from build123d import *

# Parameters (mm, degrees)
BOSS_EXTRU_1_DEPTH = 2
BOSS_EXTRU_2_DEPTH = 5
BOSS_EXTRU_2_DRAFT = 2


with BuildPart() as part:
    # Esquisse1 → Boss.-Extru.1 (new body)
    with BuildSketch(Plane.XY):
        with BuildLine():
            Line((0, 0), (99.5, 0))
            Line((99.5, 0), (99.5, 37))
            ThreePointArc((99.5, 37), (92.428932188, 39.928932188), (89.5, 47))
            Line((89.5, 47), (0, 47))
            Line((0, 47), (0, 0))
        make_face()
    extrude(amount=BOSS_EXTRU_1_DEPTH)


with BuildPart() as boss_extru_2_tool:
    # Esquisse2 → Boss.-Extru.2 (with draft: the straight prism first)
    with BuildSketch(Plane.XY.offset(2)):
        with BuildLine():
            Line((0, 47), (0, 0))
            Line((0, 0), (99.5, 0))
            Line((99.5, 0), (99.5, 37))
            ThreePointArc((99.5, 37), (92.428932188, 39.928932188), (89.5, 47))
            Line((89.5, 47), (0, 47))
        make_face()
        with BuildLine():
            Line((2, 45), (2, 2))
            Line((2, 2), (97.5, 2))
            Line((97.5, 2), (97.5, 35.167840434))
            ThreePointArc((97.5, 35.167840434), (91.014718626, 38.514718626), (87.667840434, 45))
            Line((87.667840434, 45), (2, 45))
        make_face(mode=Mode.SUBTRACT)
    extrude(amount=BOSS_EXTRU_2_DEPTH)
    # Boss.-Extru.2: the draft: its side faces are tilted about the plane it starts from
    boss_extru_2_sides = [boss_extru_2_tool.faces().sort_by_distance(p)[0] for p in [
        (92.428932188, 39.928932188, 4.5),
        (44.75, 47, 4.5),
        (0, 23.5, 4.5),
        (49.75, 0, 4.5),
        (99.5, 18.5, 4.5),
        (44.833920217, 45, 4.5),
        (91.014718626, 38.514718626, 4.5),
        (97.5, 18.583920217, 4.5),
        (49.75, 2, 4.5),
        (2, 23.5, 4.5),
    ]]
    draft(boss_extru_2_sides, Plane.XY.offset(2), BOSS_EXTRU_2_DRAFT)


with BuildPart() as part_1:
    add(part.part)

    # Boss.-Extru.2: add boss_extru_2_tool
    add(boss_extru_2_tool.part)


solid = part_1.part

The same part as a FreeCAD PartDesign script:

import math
import FreeCAD as App
import Part
import Sketcher


def faces_at(feature, points):
    """Names of the faces that lie closest to the given points."""
    faces = feature.Shape.Faces
    near = lambda p: min(range(len(faces)), key=lambda i: faces[i].distToShape(Part.Vertex(*p))[0])
    return sorted({f"Face{near(p) + 1}" for p in points})

doc = App.newDocument("Part")
params = doc.addObject("Spreadsheet::Sheet", "Params")
for row, (alias, value) in enumerate([
    ("sketch1_radius", "10 mm"),
    ("sketch1_height", "37 mm"),
    ("sketch1_height2", "47 mm"),
    ("sketch1_width", "99.5 mm"),
    ("pad1_length", "2 mm"),
    ("sketch2_radius", "10 mm"),
    ("sketch2_radius2", "12 mm"),
    ("sketch2_height", "47 mm"),
    ("sketch2_height2", "43 mm"),
    ("sketch2_width", "99.5 mm"),
    ("pad2_length", "5 mm"),
    ("draft_angle", "2 deg"),
], start=1):
    params.set(f"A{row}", alias)
    params.set(f"B{row}", "=" + value)
    params.setAlias(f"B{row}", alias)

body = doc.addObject("PartDesign::Body", "Body")

# Sketch on XY plane
sketch1 = doc.addObject("Sketcher::SketchObject", "Sketch")
body.addObject(sketch1)
sketch1.AttachmentSupport = (doc.XY_Plane, [""])
sketch1.MapMode = "FlatFace"
sketch1.addGeometry([
    Part.LineSegment(App.Vector(0, 0, 0), App.Vector(100, 0, 0)),  # 0
    Part.LineSegment(App.Vector(100, 0, 0), App.Vector(100, 37, 0)),  # 1
    Part.ArcOfCircle(Part.Circle(App.Vector(100, 47, 0), App.Vector(0, 0, 1), 10), math.radians(180), math.radians(270)),  # 2
    Part.LineSegment(App.Vector(90, 47, 0), App.Vector(0, 47, 0)),  # 3
    Part.LineSegment(App.Vector(0, 47, 0), App.Vector(0, 0, 0)),  # 4
], False)
sketch1.addConstraint([
    Sketcher.Constraint("Coincident", 0, 2, 1, 1),
    Sketcher.Constraint("Coincident", 1, 2, 2, 2),
    Sketcher.Constraint("Coincident", 2, 1, 3, 1),
    Sketcher.Constraint("Coincident", 3, 2, 4, 1),
    Sketcher.Constraint("Coincident", 4, 2, 0, 1),
    Sketcher.Constraint("Horizontal", 0),
    Sketcher.Constraint("Vertical", 1),
    Sketcher.Constraint("Horizontal", 3),
    Sketcher.Constraint("Vertical", 4),
    Sketcher.Constraint("Coincident", 4, 2, -1, 1),
    Sketcher.Constraint("Vertical", 2, 3, 0, 2),
    Sketcher.Constraint("Radius", 2, 10.0),
    Sketcher.Constraint("DistanceY", 1, 1, 1, 2, 37.0),
    Sketcher.Constraint("DistanceY", 4, 2, 4, 1, 47.0),
    Sketcher.Constraint("DistanceX", 0, 1, 0, 2, 99.5),
])
sketch1.setExpression("Constraints[11]", "Params.sketch1_radius")
sketch1.setExpression("Constraints[12]", "Params.sketch1_height")
sketch1.setExpression("Constraints[13]", "Params.sketch1_height2")
sketch1.setExpression("Constraints[14]", "Params.sketch1_width")
pad1 = doc.addObject("PartDesign::Pad", "Pad")
body.addObject(pad1)
pad1.Profile = sketch1
pad1.setExpression("Length", "Params.pad1_length")
body2 = doc.addObject("PartDesign::Body", "Body001")

# Sketch on XY plane
sketch2 = doc.addObject("Sketcher::SketchObject", "Sketch001")
body2.addObject(sketch2)
sketch2.AttachmentSupport = (doc.getObject("XY_Plane001"), [""])
sketch2.MapMode = "FlatFace"
sketch2.AttachmentOffset = App.Placement(App.Vector(0, 0, 2), App.Rotation())
sketch2.addGeometry([
    Part.LineSegment(App.Vector(0, 47, 0), App.Vector(0, 0, 0)),  # 0
    Part.LineSegment(App.Vector(0, 0, 0), App.Vector(100, 0, 0)),  # 1
    Part.LineSegment(App.Vector(100, 0, 0), App.Vector(100, 37, 0)),  # 2
    Part.ArcOfCircle(Part.Circle(App.Vector(100, 47, 0), App.Vector(0, 0, 1), 10), math.radians(180), math.radians(270)),  # 3
    Part.LineSegment(App.Vector(90, 47, 0), App.Vector(0, 47, 0)),  # 4
    Part.LineSegment(App.Vector(2, 2, 0), App.Vector(2, 45, 0)),  # 5
    Part.LineSegment(App.Vector(2, 45, 0), App.Vector(88, 45, 0)),  # 6
    Part.ArcOfCircle(Part.Circle(App.Vector(100, 47, 0), App.Vector(0, 0, 1), 12), math.radians(-170), math.radians(-100)),  # 7
    Part.LineSegment(App.Vector(98, 35, 0), App.Vector(98, 2, 0)),  # 8
    Part.LineSegment(App.Vector(98, 2, 0), App.Vector(2, 2, 0)),  # 9
], False)
sketch2.addConstraint([
    Sketcher.Constraint("Coincident", 0, 2, 1, 1),
    Sketcher.Constraint("Coincident", 1, 2, 2, 1),
    Sketcher.Constraint("Coincident", 2, 2, 3, 2),
    Sketcher.Constraint("Coincident", 3, 1, 4, 1),
    Sketcher.Constraint("Coincident", 4, 2, 0, 1),
    Sketcher.Constraint("Coincident", 5, 2, 6, 1),
    Sketcher.Constraint("Coincident", 6, 2, 7, 1),
    Sketcher.Constraint("Coincident", 7, 2, 8, 1),
    Sketcher.Constraint("Coincident", 8, 2, 9, 1),
    Sketcher.Constraint("Coincident", 9, 2, 5, 1),
    Sketcher.Constraint("Vertical", 0),
    Sketcher.Constraint("Horizontal", 1),
    Sketcher.Constraint("Vertical", 2),
    Sketcher.Constraint("Horizontal", 4),
    Sketcher.Constraint("Vertical", 5),
    Sketcher.Constraint("Horizontal", 6),
    Sketcher.Constraint("Vertical", 8),
    Sketcher.Constraint("Horizontal", 9),
    Sketcher.Constraint("Coincident", 0, 2, -1, 1),
    Sketcher.Constraint("Coincident", 7, 3, 3, 3),
    Sketcher.Constraint("Horizontal", 7, 3, 3, 1),
    Sketcher.Constraint("Vertical", 7, 3, 1, 2),
    Sketcher.Constraint("Radius", 3, 10.0),
    Sketcher.Constraint("Radius", 7, 12.0),
    Sketcher.Constraint("DistanceY", 0, 2, 0, 1, 47.0),
    Sketcher.Constraint("DistanceY", 5, 1, 5, 2, 43.0),
    Sketcher.Constraint("DistanceX", 1, 1, 1, 2, 99.5),
    Sketcher.Constraint("DistanceX", 9, 2, 9, 1, 95.5),
    Sketcher.Constraint("DistanceX", -1, 1, 5, 2, 2.0),
    Sketcher.Constraint("DistanceY", -1, 1, 5, 2, 45.0),
])
sketch2.setExpression("Constraints[22]", "Params.sketch2_radius")
sketch2.setExpression("Constraints[23]", "Params.sketch2_radius2")
sketch2.setExpression("Constraints[24]", "Params.sketch2_height")
sketch2.setExpression("Constraints[25]", "Params.sketch2_height2")
sketch2.setExpression("Constraints[26]", "Params.sketch2_width")
pad2 = doc.addObject("PartDesign::Pad", "Pad001")
body2.addObject(pad2)
pad2.Profile = sketch2
pad2.setExpression("Length", "Params.pad2_length")
doc.recompute()

datumplane = doc.addObject("PartDesign::Plane", "DatumPlane")
body2.addObject(datumplane)
datumplane.AttachmentSupport = (doc.getObject("XY_Plane001"), [""])
datumplane.MapMode = "FlatFace"
datumplane.AttachmentOffset = App.Placement(App.Vector(0, 0, 2), App.Rotation())
draft = doc.addObject("PartDesign::Draft", "Draft")
body2.addObject(draft)
draft.Base = (pad2, faces_at(pad2, [
    (92.429, 39.929, 4.5),
    (44.75, 47, 4.5),
    (0, 23.5, 4.5),
    (49.75, 0, 4.5),
    (99.5, 18.5, 4.5),
    (44.834, 45, 4.5),
    (91.015, 38.515, 4.5),
    (97.5, 18.584, 4.5),
    (49.75, 2, 4.5),
    (2, 23.5, 4.5),
]))
draft.NeutralPlane = (datumplane, [""])
draft.setExpression("Angle", "Params.draft_angle")
draft.Reversed = False
doc.recompute()

boolean = doc.addObject("PartDesign::Boolean", "Boolean")
body.addObject(boolean)
boolean.Type = "Fuse"
boolean.addObjects([body2])

doc.recompute()
